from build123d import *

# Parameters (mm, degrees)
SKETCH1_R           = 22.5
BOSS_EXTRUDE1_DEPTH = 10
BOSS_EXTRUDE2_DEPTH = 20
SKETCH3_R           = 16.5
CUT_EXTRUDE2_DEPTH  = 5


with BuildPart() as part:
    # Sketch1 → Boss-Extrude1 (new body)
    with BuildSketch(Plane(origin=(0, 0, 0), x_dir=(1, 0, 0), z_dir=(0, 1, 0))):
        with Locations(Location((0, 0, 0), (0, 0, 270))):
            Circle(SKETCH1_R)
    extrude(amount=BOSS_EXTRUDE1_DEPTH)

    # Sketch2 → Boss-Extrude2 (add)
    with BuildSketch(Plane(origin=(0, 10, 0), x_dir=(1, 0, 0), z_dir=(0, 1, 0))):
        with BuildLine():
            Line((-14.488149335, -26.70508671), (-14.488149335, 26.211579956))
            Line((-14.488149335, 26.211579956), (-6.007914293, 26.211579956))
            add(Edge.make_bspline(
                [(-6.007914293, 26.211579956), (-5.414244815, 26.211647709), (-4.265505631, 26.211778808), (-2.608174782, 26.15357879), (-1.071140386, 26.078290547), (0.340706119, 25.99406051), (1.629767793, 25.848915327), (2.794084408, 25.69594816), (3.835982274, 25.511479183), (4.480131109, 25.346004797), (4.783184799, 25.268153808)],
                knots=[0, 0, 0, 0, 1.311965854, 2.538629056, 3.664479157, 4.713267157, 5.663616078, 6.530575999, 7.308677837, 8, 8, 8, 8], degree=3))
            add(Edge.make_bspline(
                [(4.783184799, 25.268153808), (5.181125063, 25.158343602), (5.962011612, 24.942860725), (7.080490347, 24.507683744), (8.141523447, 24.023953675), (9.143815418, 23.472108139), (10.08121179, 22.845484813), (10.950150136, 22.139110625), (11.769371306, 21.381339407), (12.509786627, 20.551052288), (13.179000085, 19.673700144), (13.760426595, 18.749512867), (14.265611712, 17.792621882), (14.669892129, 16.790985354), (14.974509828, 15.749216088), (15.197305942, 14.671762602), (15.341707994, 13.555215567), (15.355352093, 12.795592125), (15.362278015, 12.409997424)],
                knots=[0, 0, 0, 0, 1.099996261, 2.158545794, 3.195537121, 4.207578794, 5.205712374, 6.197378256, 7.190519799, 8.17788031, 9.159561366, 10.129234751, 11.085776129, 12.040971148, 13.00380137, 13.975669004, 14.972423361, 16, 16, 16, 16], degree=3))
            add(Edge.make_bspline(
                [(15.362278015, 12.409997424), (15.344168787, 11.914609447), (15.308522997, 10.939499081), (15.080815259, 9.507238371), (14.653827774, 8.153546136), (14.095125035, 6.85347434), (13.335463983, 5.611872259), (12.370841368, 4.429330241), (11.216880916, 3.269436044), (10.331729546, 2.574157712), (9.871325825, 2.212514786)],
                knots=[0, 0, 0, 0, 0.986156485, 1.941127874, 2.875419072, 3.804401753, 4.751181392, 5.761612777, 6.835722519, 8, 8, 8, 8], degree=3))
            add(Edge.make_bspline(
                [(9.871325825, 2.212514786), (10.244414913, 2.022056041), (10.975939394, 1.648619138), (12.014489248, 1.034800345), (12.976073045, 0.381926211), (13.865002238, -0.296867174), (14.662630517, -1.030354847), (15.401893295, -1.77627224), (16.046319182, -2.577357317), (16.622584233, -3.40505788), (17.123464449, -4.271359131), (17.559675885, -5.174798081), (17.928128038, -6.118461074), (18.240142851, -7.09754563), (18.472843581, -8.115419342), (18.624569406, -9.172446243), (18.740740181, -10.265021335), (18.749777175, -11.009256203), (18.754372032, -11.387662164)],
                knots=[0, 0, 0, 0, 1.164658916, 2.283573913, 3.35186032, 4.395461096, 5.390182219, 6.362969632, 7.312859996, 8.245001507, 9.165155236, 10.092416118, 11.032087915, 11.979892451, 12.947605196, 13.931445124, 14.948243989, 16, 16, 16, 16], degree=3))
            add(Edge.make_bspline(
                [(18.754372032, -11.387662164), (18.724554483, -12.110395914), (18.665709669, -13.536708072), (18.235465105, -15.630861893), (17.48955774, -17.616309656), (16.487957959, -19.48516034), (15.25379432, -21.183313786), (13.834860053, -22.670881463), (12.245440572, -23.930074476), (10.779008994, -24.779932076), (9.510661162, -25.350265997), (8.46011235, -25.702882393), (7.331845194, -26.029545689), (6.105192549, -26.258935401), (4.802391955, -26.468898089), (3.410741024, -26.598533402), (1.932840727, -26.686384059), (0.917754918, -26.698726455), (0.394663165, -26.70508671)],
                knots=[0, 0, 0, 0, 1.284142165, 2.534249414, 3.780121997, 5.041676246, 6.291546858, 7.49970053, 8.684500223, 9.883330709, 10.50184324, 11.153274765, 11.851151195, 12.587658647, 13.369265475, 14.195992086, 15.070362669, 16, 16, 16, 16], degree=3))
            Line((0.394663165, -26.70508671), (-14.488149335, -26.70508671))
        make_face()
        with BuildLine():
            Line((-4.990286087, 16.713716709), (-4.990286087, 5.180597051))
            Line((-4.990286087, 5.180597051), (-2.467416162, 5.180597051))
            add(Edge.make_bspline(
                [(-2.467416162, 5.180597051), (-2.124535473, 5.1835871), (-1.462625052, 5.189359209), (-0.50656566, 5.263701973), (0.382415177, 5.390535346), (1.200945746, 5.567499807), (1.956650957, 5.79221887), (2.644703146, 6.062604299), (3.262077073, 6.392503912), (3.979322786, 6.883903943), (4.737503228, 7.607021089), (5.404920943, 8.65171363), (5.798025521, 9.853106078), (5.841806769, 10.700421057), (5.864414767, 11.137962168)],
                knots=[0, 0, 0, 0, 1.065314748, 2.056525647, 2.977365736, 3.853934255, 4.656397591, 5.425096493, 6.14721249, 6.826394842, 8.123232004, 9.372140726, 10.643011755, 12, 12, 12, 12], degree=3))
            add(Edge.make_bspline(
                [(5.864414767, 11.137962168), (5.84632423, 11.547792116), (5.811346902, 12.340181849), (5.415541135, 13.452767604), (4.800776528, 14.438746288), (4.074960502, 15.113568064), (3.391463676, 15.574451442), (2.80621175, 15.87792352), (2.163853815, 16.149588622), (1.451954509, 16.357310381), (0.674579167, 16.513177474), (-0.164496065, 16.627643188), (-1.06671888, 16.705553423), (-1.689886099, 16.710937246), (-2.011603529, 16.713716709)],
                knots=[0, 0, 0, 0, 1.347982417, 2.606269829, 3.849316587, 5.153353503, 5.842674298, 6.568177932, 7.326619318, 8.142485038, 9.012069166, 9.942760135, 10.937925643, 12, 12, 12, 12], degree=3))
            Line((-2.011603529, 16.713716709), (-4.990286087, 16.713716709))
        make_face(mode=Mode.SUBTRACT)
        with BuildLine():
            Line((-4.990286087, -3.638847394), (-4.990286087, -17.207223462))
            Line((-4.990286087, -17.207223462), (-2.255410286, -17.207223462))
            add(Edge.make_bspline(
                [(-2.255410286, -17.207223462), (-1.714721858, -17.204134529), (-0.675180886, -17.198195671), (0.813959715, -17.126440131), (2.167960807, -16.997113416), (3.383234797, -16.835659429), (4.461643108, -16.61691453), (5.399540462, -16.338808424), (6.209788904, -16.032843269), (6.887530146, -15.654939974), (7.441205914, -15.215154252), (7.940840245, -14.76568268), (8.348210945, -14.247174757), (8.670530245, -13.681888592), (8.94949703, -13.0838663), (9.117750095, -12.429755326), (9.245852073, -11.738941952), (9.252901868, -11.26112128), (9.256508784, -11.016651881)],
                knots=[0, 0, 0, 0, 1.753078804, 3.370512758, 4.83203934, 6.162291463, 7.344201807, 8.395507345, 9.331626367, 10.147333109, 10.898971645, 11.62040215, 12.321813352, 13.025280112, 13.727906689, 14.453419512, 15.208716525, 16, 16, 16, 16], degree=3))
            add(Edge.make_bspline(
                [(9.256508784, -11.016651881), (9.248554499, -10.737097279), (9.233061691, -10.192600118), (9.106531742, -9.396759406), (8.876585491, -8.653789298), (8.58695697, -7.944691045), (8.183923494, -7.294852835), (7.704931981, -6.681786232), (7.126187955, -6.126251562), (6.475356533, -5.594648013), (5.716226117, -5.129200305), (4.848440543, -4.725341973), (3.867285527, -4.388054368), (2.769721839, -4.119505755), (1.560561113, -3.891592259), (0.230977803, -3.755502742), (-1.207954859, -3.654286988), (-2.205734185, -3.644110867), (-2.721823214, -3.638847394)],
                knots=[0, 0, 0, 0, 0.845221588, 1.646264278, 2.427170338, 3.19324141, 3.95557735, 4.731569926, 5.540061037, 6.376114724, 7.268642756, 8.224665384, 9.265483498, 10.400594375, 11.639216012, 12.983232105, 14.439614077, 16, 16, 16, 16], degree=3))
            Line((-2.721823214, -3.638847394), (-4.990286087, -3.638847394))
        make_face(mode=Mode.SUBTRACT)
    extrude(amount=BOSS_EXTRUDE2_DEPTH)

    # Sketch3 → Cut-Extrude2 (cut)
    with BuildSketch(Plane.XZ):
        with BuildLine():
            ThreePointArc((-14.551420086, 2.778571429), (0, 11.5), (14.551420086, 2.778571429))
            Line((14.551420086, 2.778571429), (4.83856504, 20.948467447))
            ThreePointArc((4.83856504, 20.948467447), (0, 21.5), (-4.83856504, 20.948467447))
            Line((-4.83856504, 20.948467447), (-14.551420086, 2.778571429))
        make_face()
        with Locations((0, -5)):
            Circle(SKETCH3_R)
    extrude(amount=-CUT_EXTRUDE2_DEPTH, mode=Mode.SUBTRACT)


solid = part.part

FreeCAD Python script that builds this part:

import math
import FreeCAD as App
import Part
import Sketcher

doc = App.newDocument("Part")
body = doc.addObject("PartDesign::Body", "Body")

sketch1 = doc.addObject("Sketcher::SketchObject", "Sketch")
body.addObject(sketch1)
sketch1.AttachmentSupport = (doc.XZ_Plane, [""])
sketch1.MapMode = "FlatFace"
sketch1.addGeometry(Part.Circle(App.Vector(0, 0, 0), App.Vector(0, 0, 1), 22), False)
sketch1.addConstraint([
    Sketcher.Constraint("Coincident", 0, 3, -1, 1),
    Sketcher.Constraint("Diameter", 0, 45.0),
])
pad1 = doc.addObject("PartDesign::Pad", "Pad")
body.addObject(pad1)
pad1.Profile = sketch1
pad1.Length = 10
pad1.Reversed = True

sketch2 = doc.addObject("Sketcher::SketchObject", "Sketch001")
body.addObject(sketch2)
sketch2.AttachmentSupport = (doc.XZ_Plane, [""])
sketch2.MapMode = "FlatFace"
sketch2.AttachmentOffset = App.Placement(App.Vector(0, 0, -10), App.Rotation())
sketch2.addGeometry([
    Part.LineSegment(App.Vector(-14.488149, -26.21158, 0), App.Vector(-14.488149, 26.705087, 0)),
    Part.LineSegment(App.Vector(-14.488149, 26.705087, 0), App.Vector(0.394663, 26.705087, 0)),
    Part.BSplineCurve([App.Vector(18.754372, 11.387662, 0), App.Vector(18.724554, 12.110396, 0), App.Vector(18.66571, 13.536708, 0), App.Vector(18.235465, 15.630862, 0), App.Vector(17.489558, 17.61631, 0), App.Vector(16.487958, 19.48516, 0), App.Vector(15.253794, 21.183314, 0), App.Vector(13.83486, 22.670881, 0), App.Vector(12.245441, 23.930074, 0), App.Vector(10.779009, 24.779932, 0), App.Vector(9.510661, 25.350266, 0), App.Vector(8.460112, 25.702882, 0), App.Vector(7.331845, 26.029546, 0), App.Vector(6.105193, 26.258935, 0), App.Vector(4.802392, 26.468898, 0), App.Vector(3.410741, 26.598533, 0), App.Vector(1.932841, 26.686384, 0), App.Vector(0.917755, 26.698726, 0), App.Vector(0.394663, 26.705087, 0)], [4, 1, 1, 1, 1, 1, 1, 1, 1, 1, 1, 1, 1, 1, 1, 1, 4], [0, 1.284142165, 2.534249414, 3.780121997, 5.041676246, 6.291546858, 7.49970053, 8.684500223, 9.883330709, 10.50184324, 11.153274765, 11.851151195, 12.587658647, 13.369265475, 14.195992086, 15.070362669, 16], False, 3, [1, 1, 1, 1, 1, 1, 1, 1, 1, 1, 1, 1, 1, 1, 1, 1, 1, 1, 1], False),
    Part.BSplineCurve([App.Vector(9.871326, -2.212515, 0), App.Vector(10.244415, -2.022056, 0), App.Vector(10.975939, -1.648619, 0), App.Vector(12.014489, -1.0348, 0), App.Vector(12.976073, -0.381926, 0), App.Vector(13.865002, 0.296867, 0), App.Vector(14.662631, 1.030355, 0), App.Vector(15.401893, 1.776272, 0), App.Vector(16.046319, 2.577357, 0), App.Vector(16.622584, 3.405058, 0), App.Vector(17.123464, 4.271359, 0), App.Vector(17.559676, 5.174798, 0), App.Vector(17.928128, 6.118461, 0), App.Vector(18.240143, 7.097546, 0), App.Vector(18.472844, 8.115419, 0), App.Vector(18.624569, 9.172446, 0), App.Vector(18.74074, 10.265021, 0), App.Vector(18.749777, 11.009256, 0), App.Vector(18.754372, 11.387662, 0)], [4, 1, 1, 1, 1, 1, 1, 1, 1, 1, 1, 1, 1, 1, 1, 1, 4], [0, 1.164658916, 2.283573913, 3.35186032, 4.395461096, 5.390182219, 6.362969632, 7.312859996, 8.245001507, 9.165155236, 10.092416118, 11.032087915, 11.979892451, 12.947605196, 13.931445124, 14.948243989, 16], False, 3, [1, 1, 1, 1, 1, 1, 1, 1, 1, 1, 1, 1, 1, 1, 1, 1, 1, 1, 1], False),
    Part.BSplineCurve([App.Vector(15.362278, -12.409997, 0), App.Vector(15.344169, -11.914609, 0), App.Vector(15.308523, -10.939499, 0), App.Vector(15.080815, -9.507238, 0), App.Vector(14.653828, -8.153546, 0), App.Vector(14.095125, -6.853474, 0), App.Vector(13.335464, -5.611872, 0), App.Vector(12.370841, -4.42933, 0), App.Vector(11.216881, -3.269436, 0), App.Vector(10.33173, -2.574158, 0), App.Vector(9.871326, -2.212515, 0)], [4, 1, 1, 1, 1, 1, 1, 1, 4], [0, 0.986156485, 1.941127874, 2.875419072, 3.804401753, 4.751181392, 5.761612777, 6.835722519, 8], False, 3, [1, 1, 1, 1, 1, 1, 1, 1, 1, 1, 1], False),
    Part.BSplineCurve([App.Vector(4.783185, -25.268154, 0), App.Vector(5.181125, -25.158344, 0), App.Vector(5.962012, -24.942861, 0), App.Vector(7.08049, -24.507684, 0), App.Vector(8.141523, -24.023954, 0), App.Vector(9.143815, -23.472108, 0), App.Vector(10.081212, -22.845485, 0), App.Vector(10.95015, -22.139111, 0), App.Vector(11.769371, -21.381339, 0), App.Vector(12.509787, -20.551052, 0), App.Vector(13.179, -19.6737, 0), App.Vector(13.760427, -18.749513, 0), App.Vector(14.265612, -17.792622, 0), App.Vector(14.669892, -16.790985, 0), App.Vector(14.97451, -15.749216, 0), App.Vector(15.197306, -14.671763, 0), App.Vector(15.341708, -13.555216, 0), App.Vector(15.355352, -12.795592, 0), App.Vector(15.362278, -12.409997, 0)], [4, 1, 1, 1, 1, 1, 1, 1, 1, 1, 1, 1, 1, 1, 1, 1, 4], [0, 1.099996261, 2.158545794, 3.195537121, 4.207578794, 5.205712374, 6.197378256, 7.190519799, 8.17788031, 9.159561366, 10.129234751, 11.085776129, 12.040971148, 13.00380137, 13.975669004, 14.972423361, 16], False, 3, [1, 1, 1, 1, 1, 1, 1, 1, 1, 1, 1, 1, 1, 1, 1, 1, 1, 1, 1], False),
    Part.BSplineCurve([App.Vector(-6.007914, -26.21158, 0), App.Vector(-5.414245, -26.211648, 0), App.Vector(-4.265506, -26.211779, 0), App.Vector(-2.608175, -26.153579, 0), App.Vector(-1.07114, -26.078291, 0), App.Vector(0.340706, -25.994061, 0), App.Vector(1.629768, -25.848915, 0), App.Vector(2.794084, -25.695948, 0), App.Vector(3.835982, -25.511479, 0), App.Vector(4.480131, -25.346005, 0), App.Vector(4.783185, -25.268154, 0)], [4, 1, 1, 1, 1, 1, 1, 1, 4], [0, 1.311965854, 2.538629056, 3.664479157, 4.713267157, 5.663616078, 6.530575999, 7.308677837, 8], False, 3, [1, 1, 1, 1, 1, 1, 1, 1, 1, 1, 1], False),
    Part.LineSegment(App.Vector(-6.007914, -26.21158, 0), App.Vector(-14.488149, -26.21158, 0)),
    Part.LineSegment(App.Vector(-4.990286, 3.638847, 0), App.Vector(-2.721823, 3.638847, 0)),
    Part.BSplineCurve([App.Vector(9.256509, 11.016652, 0), App.Vector(9.248554, 10.737097, 0), App.Vector(9.233062, 10.1926, 0), App.Vector(9.106532, 9.396759, 0), App.Vector(8.876585, 8.653789, 0), App.Vector(8.586957, 7.944691, 0), App.Vector(8.183923, 7.294853, 0), App.Vector(7.704932, 6.681786, 0), App.Vector(7.126188, 6.126252, 0), App.Vector(6.475357, 5.594648, 0), App.Vector(5.716226, 5.1292, 0), App.Vector(4.848441, 4.725342, 0), App.Vector(3.867286, 4.388054, 0), App.Vector(2.769722, 4.119506, 0), App.Vector(1.560561, 3.891592, 0), App.Vector(0.230978, 3.755503, 0), App.Vector(-1.207955, 3.654287, 0), App.Vector(-2.205734, 3.644111, 0), App.Vector(-2.721823, 3.638847, 0)], [4, 1, 1, 1, 1, 1, 1, 1, 1, 1, 1, 1, 1, 1, 1, 1, 4], [0, 0.845221588, 1.646264278, 2.427170338, 3.19324141, 3.95557735, 4.731569926, 5.540061037, 6.376114724, 7.268642756, 8.224665384, 9.265483498, 10.400594375, 11.639216012, 12.983232105, 14.439614077, 16], False, 3, [1, 1, 1, 1, 1, 1, 1, 1, 1, 1, 1, 1, 1, 1, 1, 1, 1, 1, 1], False),
    Part.BSplineCurve([App.Vector(-2.25541, 17.207223, 0), App.Vector(-1.714722, 17.204135, 0), App.Vector(-0.675181, 17.198196, 0), App.Vector(0.81396, 17.12644, 0), App.Vector(2.167961, 16.997113, 0), App.Vector(3.383235, 16.835659, 0), App.Vector(4.461643, 16.616915, 0), App.Vector(5.39954, 16.338808, 0), App.Vector(6.209789, 16.032843, 0), App.Vector(6.88753, 15.65494, 0), App.Vector(7.441206, 15.215154, 0), App.Vector(7.94084, 14.765683, 0), App.Vector(8.348211, 14.247175, 0), App.Vector(8.67053, 13.681889, 0), App.Vector(8.949497, 13.083866, 0), App.Vector(9.11775, 12.429755, 0), App.Vector(9.245852, 11.738942, 0), App.Vector(9.252902, 11.261121, 0), App.Vector(9.256509, 11.016652, 0)], [4, 1, 1, 1, 1, 1, 1, 1, 1, 1, 1, 1, 1, 1, 1, 1, 4], [0, 1.753078804, 3.370512758, 4.83203934, 6.162291463, 7.344201807, 8.395507345, 9.331626367, 10.147333109, 10.898971645, 11.62040215, 12.321813352, 13.025280112, 13.727906689, 14.453419512, 15.208716525, 16], False, 3, [1, 1, 1, 1, 1, 1, 1, 1, 1, 1, 1, 1, 1, 1, 1, 1, 1, 1, 1], False),
    Part.LineSegment(App.Vector(-2.25541, 17.207223, 0), App.Vector(-4.990286, 17.207223, 0)),
    Part.LineSegment(App.Vector(-4.990286, 17.207223, 0), App.Vector(-4.990286, 3.638847, 0)),
    Part.LineSegment(App.Vector(-4.990286, -16.713717, 0), App.Vector(-2.011604, -16.713717, 0)),
    Part.BSplineCurve([App.Vector(5.864415, -11.137962, 0), App.Vector(5.846324, -11.547792, 0), App.Vector(5.811347, -12.340182, 0), App.Vector(5.415541, -13.452768, 0), App.Vector(4.800777, -14.438746, 0), App.Vector(4.074961, -15.113568, 0), App.Vector(3.391464, -15.574451, 0), App.Vector(2.806212, -15.877924, 0), App.Vector(2.163854, -16.149589, 0), App.Vector(1.451955, -16.35731, 0), App.Vector(0.674579, -16.513177, 0), App.Vector(-0.164496, -16.627643, 0), App.Vector(-1.066719, -16.705553, 0), App.Vector(-1.689886, -16.710937, 0), App.Vector(-2.011604, -16.713717, 0)], [4, 1, 1, 1, 1, 1, 1, 1, 1, 1, 1, 1, 4], [0, 1.347982417, 2.606269829, 3.849316587, 5.153353503, 5.842674298, 6.568177932, 7.326619318, 8.142485038, 9.012069166, 9.942760135, 10.937925643, 12], False, 3, [1, 1, 1, 1, 1, 1, 1, 1, 1, 1, 1, 1, 1, 1, 1], False),
    Part.BSplineCurve([App.Vector(-2.467416, -5.180597, 0), App.Vector(-2.124535, -5.183587, 0), App.Vector(-1.462625, -5.189359, 0), App.Vector(-0.506566, -5.263702, 0), App.Vector(0.382415, -5.390535, 0), App.Vector(1.200946, -5.5675, 0), App.Vector(1.956651, -5.792219, 0), App.Vector(2.644703, -6.062604, 0), App.Vector(3.262077, -6.392504, 0), App.Vector(3.979323, -6.883904, 0), App.Vector(4.737503, -7.607021, 0), App.Vector(5.404921, -8.651714, 0), App.Vector(5.798026, -9.853106, 0), App.Vector(5.841807, -10.700421, 0), App.Vector(5.864415, -11.137962, 0)], [4, 1, 1, 1, 1, 1, 1, 1, 1, 1, 1, 1, 4], [0, 1.065314748, 2.056525647, 2.977365736, 3.853934255, 4.656397591, 5.425096493, 6.14721249, 6.826394842, 8.123232004, 9.372140726, 10.643011755, 12], False, 3, [1, 1, 1, 1, 1, 1, 1, 1, 1, 1, 1, 1, 1, 1, 1], False),
    Part.LineSegment(App.Vector(-2.467416, -5.180597, 0), App.Vector(-4.990286, -5.180597, 0)),
    Part.LineSegment(App.Vector(-4.990286, -5.180597, 0), App.Vector(-4.990286, -16.713717, 0)),
], False)
sketch2.addConstraint([
    Sketcher.Constraint("Block", 2),
    Sketcher.Constraint("Block", 3),
    Sketcher.Constraint("Block", 4),
    Sketcher.Constraint("Block", 5),
    Sketcher.Constraint("Block", 6),
    Sketcher.Constraint("Block", 9),
    Sketcher.Constraint("Block", 10),
    Sketcher.Constraint("Block", 14),
    Sketcher.Constraint("Block", 15),
    Sketcher.Constraint("Coincident", 0, 2, 1, 1),
    Sketcher.Constraint("Coincident", 1, 2, 2, 2),
    Sketcher.Constraint("Coincident", 6, 1, 7, 1),
    Sketcher.Constraint("Coincident", 7, 2, 0, 1),
    Sketcher.Constraint("Coincident", 8, 2, 9, 2),
    Sketcher.Constraint("Coincident", 10, 1, 11, 1),
    Sketcher.Constraint("Coincident", 11, 2, 12, 1),
    Sketcher.Constraint("Coincident", 12, 2, 8, 1),
    Sketcher.Constraint("Coincident", 13, 2, 14, 2),
    Sketcher.Constraint("Coincident", 15, 1, 16, 1),
    Sketcher.Constraint("Coincident", 16, 2, 17, 1),
    Sketcher.Constraint("Coincident", 17, 2, 13, 1),
    Sketcher.Constraint("Vertical", 0),
    Sketcher.Constraint("Horizontal", 1),
    Sketcher.Constraint("Horizontal", 7),
    Sketcher.Constraint("Horizontal", 8),
    Sketcher.Constraint("Horizontal", 11),
    Sketcher.Constraint("Vertical", 12),
    Sketcher.Constraint("Horizontal", 13),
    Sketcher.Constraint("Horizontal", 16),
    Sketcher.Constraint("Vertical", 17),
    Sketcher.Constraint("Vertical", 12, 2, 16, 2),
    Sketcher.Constraint("DistanceX", 16, 2, 16, 1, 2.52287),
    Sketcher.Constraint("DistanceX", 1, 1, 1, 2, 14.882812),
])
pad2 = doc.addObject("PartDesign::Pad", "Pad001")
body.addObject(pad2)
pad2.Profile = sketch2
pad2.Length = 20
pad2.Reversed = True

sketch3 = doc.addObject("Sketcher::SketchObject", "Sketch002")
body.addObject(sketch3)
sketch3.AttachmentSupport = (doc.XZ_Plane, [""])
sketch3.MapMode = "FlatFace"
sketch3.addGeometry([
    Part.LineSegment(App.Vector(15, 3, 0), App.Vector(5, 21, 0)),
    Part.ArcOfCircle(Part.Circle(App.Vector(0, 0, 0), App.Vector(0, 0, 1), 22), math.radians(77), math.radians(103)),
    Part.LineSegment(App.Vector(-5, 21, 0), App.Vector(-15, 3, 0)),
    Part.ArcOfCircle(Part.Circle(App.Vector(0, -5, 0), App.Vector(0, 0, 1), 16), math.radians(152), math.radians(388)),
], False)
sketch3.addConstraint([
    Sketcher.Constraint("Coincident", 0, 2, 1, 1),
    Sketcher.Constraint("Coincident", 1, 2, 2, 1),
    Sketcher.Constraint("Tangent", 2, 2, 3, 1),
    Sketcher.Constraint("Tangent", 3, 2, 0, 1),
    Sketcher.Constraint("Coincident", 1, 3, -1, 1),
    Sketcher.Constraint("Symmetric", 2, 2, 3, 2, -2),
    Sketcher.Constraint("Radius", 1, 21.5),
    Sketcher.Constraint("Radius", 3, 16.5),
    Sketcher.Constraint("DistanceY", 3, 3, -1, 1, 5.0),
    Sketcher.Constraint("DistanceX", 2, 2, -1, 1, 14.55142),
])
pocket1 = doc.addObject("PartDesign::Pocket", "Pocket")
body.addObject(pocket1)
pocket1.Profile = sketch3
pocket1.Length = 5

doc.recompute()
